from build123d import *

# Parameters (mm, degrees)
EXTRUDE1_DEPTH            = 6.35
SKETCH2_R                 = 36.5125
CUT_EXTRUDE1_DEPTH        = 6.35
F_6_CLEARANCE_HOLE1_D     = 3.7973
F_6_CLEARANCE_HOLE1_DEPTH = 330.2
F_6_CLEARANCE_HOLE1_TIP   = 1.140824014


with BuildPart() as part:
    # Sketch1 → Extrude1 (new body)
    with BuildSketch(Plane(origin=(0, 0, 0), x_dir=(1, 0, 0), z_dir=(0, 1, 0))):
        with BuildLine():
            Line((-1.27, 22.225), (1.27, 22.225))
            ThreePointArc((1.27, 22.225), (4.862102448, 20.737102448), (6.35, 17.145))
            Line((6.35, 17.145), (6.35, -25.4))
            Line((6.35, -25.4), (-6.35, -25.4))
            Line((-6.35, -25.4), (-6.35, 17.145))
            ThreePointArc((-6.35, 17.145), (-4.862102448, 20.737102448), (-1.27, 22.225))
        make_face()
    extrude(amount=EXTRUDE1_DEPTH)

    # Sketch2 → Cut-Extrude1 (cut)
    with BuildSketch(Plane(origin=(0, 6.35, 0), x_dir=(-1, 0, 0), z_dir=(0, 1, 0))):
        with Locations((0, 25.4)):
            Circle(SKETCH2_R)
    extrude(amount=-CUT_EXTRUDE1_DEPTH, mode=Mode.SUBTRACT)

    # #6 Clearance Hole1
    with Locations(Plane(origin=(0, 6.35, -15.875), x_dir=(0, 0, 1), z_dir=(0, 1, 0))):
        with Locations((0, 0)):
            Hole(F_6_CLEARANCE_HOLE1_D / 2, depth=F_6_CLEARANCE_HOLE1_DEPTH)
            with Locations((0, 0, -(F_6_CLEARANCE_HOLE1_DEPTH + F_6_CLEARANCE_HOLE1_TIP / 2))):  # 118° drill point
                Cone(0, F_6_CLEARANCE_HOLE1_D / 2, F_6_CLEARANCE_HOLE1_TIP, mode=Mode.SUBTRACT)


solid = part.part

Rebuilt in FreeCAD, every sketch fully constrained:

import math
import FreeCAD as App
import Part
import Sketcher

V = App.Vector
Q = App.Units.Quantity

doc = App.newDocument("Part")
body = doc.addObject("PartDesign::Body", "Body")

sketch1 = body.newObject("Sketcher::SketchObject", "Sketch")
sketch1.AttachmentSupport = (doc.getObject("XZ_Plane"), [""])
sketch1.MapMode = "FlatFace"
sketch1.addGeometry(Part.LineSegment(V(1.3, -22.2, 0), V(-1.3, -22.2, 0)), False)
sketch1.addGeometry(Part.ArcOfCircle(Part.Circle(V(-1.3, -17.1, 0), V(0, 0, 1), 5.1), math.radians(-180), math.radians(-90)), False)
sketch1.addGeometry(Part.LineSegment(V(-6.3, -17.1, 0), V(-6.3, 25.4, 0)), False)
sketch1.addGeometry(Part.LineSegment(V(-6.3, 25.4, 0), V(6.3, 25.4, 0)), False)
sketch1.addGeometry(Part.LineSegment(V(6.3, 25.4, 0), V(6.3, -17.1, 0)), False)
sketch1.addGeometry(Part.ArcOfCircle(Part.Circle(V(1.3, -17.1, 0), V(0, 0, 1), 5.1), math.radians(-90), math.radians(0)), False)
sketch1.addConstraint(Sketcher.Constraint("Tangent", 0, 2, 1, 2))
sketch1.addConstraint(Sketcher.Constraint("Tangent", 1, 1, 2, 1))
sketch1.addConstraint(Sketcher.Constraint("Coincident", 2, 2, 3, 1))
sketch1.addConstraint(Sketcher.Constraint("Coincident", 3, 2, 4, 1))
sketch1.addConstraint(Sketcher.Constraint("Tangent", 4, 2, 5, 2))
sketch1.addConstraint(Sketcher.Constraint("Tangent", 5, 1, 0, 1))
sketch1.addConstraint(Sketcher.Constraint("Horizontal", 0))
sketch1.addConstraint(Sketcher.Constraint("Vertical", 2))
sketch1.addConstraint(Sketcher.Constraint("Horizontal", 3))
sketch1.addConstraint(Sketcher.Constraint("Vertical", 4))
sketch1.addConstraint(Sketcher.Constraint("Equal", 1, 5))
sketch1.addConstraint(Sketcher.Constraint("Radius", 1, Q("0.2 in")))
sketch1.addConstraint(Sketcher.Constraint("DistanceX", 0, 2, 0, 1, Q("0.1 in")))
sketch1.addConstraint(Sketcher.Constraint("DistanceY", -1, 1, 2, 2, Q("1 in")))
sketch1.addConstraint(Sketcher.Constraint("DistanceY", 2, 1, 2, 2, Q("1.675 in")))
sketch1.addConstraint(Sketcher.Constraint("DistanceX", 1, 3, -1, 1, Q("0.05 in")))
pad1 = body.newObject("PartDesign::Pad", "Pad")
pad1.Profile = sketch1
pad1.Length = Q("0.25 in")
pad1.Reversed = True

sketch2 = body.newObject("Sketcher::SketchObject", "Sketch001")
sketch2.AttachmentSupport = (doc.getObject("XZ_Plane"), [""])
sketch2.MapMode = "FlatFace"
sketch2.AttachmentOffset = App.Placement(V(0, 0, -0.25 * 25.4), App.Rotation())
sketch2.addGeometry(Part.Circle(V(0, 25, 0), V(0, 0, 1), 37), False)
sketch2.addConstraint(Sketcher.Constraint("PointOnObject", 0, 3, -2))
sketch2.addConstraint(Sketcher.Constraint("Diameter", 0, Q("2.875 in")))
sketch2.addConstraint(Sketcher.Constraint("DistanceY", -1, 1, 0, 3, Q("1 in")))
pocket1 = body.newObject("PartDesign::Pocket", "Pocket")
pocket1.Profile = sketch2
pocket1.Length = Q("0.25 in")
pocket1.Reversed = True

sketch3 = body.newObject("Sketcher::SketchObject", "Sketch002")
sketch3.AttachmentSupport = (doc.getObject("XZ_Plane"), [""])
sketch3.MapMode = "FlatFace"
sketch3.AttachmentOffset = App.Placement(V(0, 0, -0.25 * 25.4), App.Rotation())
sketch3.addGeometry(Part.Circle(V(0, -15.9, 0), V(0, 0, 1), 1.9), False)
sketch3.addConstraint(Sketcher.Constraint("PointOnObject", 0, 3, -2))
sketch3.addConstraint(Sketcher.Constraint("Diameter", 0, Q("0.1495 in")))
sketch3.addConstraint(Sketcher.Constraint("DistanceY", 0, 3, -1, 1, Q("0.625 in")))
doc.recompute()
hole = body.newObject("PartDesign::Hole", "Hole")
hole.Profile = sketch3
hole.ThreadType = "None"
hole.Diameter = Q("0.1495 in")
hole.DepthType = "Dimension"
hole.Depth = Q("13 in")
hole.DrillPoint = "Angled"
hole.DrillPointAngle = 118
hole.Reversed = True

doc.recompute()
